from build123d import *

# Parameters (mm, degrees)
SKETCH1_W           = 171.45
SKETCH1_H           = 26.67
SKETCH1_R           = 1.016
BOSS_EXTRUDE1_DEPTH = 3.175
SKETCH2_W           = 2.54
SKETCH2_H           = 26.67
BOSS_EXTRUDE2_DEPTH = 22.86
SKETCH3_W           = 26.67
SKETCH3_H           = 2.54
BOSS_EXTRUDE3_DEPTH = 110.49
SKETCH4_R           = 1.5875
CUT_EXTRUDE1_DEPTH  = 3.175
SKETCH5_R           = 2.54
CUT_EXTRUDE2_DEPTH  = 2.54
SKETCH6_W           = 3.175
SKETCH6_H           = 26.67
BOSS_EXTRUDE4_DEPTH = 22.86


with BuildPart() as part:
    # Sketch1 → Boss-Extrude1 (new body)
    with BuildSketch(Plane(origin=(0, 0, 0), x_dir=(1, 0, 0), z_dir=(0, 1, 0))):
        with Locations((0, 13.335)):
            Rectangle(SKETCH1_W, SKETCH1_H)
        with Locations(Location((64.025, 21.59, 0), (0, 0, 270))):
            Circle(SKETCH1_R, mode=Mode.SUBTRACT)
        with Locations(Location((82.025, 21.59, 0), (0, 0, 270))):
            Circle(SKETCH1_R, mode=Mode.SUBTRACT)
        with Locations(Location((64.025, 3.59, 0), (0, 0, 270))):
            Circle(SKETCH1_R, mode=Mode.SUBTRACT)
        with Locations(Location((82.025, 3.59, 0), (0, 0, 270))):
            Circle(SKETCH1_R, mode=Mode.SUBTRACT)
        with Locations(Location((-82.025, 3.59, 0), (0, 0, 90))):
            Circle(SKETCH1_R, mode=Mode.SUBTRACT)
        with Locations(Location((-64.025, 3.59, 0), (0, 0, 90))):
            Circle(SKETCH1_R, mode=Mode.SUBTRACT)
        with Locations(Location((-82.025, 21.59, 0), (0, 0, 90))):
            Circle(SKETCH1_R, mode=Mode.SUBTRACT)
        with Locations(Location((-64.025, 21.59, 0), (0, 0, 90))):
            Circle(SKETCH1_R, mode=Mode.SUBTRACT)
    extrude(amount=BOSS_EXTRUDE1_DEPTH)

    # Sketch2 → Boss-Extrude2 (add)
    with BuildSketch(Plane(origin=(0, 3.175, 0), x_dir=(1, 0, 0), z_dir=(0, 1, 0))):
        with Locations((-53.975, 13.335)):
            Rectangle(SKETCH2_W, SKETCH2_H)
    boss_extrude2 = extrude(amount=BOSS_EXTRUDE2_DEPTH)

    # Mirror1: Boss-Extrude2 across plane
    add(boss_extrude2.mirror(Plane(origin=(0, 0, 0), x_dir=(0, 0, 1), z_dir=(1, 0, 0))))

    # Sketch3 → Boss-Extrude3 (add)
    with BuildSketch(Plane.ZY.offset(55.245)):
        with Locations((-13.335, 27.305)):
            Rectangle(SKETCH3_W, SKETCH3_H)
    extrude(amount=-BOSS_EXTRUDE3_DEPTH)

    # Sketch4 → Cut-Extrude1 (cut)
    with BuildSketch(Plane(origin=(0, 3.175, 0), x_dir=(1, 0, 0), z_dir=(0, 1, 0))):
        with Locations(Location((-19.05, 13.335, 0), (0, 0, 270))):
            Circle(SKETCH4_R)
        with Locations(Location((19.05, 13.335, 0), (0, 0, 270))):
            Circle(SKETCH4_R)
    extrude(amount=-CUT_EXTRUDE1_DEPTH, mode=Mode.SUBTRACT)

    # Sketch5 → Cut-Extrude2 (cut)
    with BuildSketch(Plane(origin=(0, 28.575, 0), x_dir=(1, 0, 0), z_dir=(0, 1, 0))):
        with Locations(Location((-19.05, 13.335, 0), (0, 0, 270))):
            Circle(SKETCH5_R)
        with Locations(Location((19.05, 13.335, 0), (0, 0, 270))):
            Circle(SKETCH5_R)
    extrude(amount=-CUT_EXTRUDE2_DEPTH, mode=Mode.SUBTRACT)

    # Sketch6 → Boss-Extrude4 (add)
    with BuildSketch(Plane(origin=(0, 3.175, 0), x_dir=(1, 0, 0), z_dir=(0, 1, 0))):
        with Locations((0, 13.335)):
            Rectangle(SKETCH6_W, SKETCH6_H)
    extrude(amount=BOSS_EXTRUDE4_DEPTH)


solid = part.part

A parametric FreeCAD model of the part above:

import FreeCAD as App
import Part
import Sketcher
Q = App.Units.Quantity


def add_polygon(sketch, points):
    """Adds a closed chain of lines whose ends are joined by coincident constraints."""
    first, n = sketch.GeometryCount, len(points)
    for a, b in zip(points, points[1:] + points[:1]):
        sketch.addGeometry(Part.LineSegment(App.Vector(*a, 0), App.Vector(*b, 0)), False)
    for i in range(n):
        sketch.addConstraint(Sketcher.Constraint("Coincident", first + i, 2, first + (i + 1) % n, 1))

doc = App.newDocument("Part")
body = doc.addObject("PartDesign::Body", "Body")

# Sketch on XZ plane
sketch1 = body.newObject("Sketcher::SketchObject", "Sketch")
sketch1.AttachmentSupport = (doc.getObject("XZ_Plane"), [""])
sketch1.MapMode = "FlatFace"
add_polygon(sketch1, [(-85.7, -26.7), (-85.7, 0), (85.7, 0), (85.7, -26.7)])  # lines 0-3
sketch1.addGeometry(Part.Circle(App.Vector(-82, -3.6, 0), App.Vector(0, 0, 1), 1), False)  # 4
sketch1.addGeometry(Part.Circle(App.Vector(-64, -3.6, 0), App.Vector(0, 0, 1), 1), False)  # 5
sketch1.addGeometry(Part.Circle(App.Vector(64, -3.6, 0), App.Vector(0, 0, 1), 1), False)  # 6
sketch1.addGeometry(Part.Circle(App.Vector(82, -3.6, 0), App.Vector(0, 0, 1), 1), False)  # 7
sketch1.addGeometry(Part.Circle(App.Vector(-82, -21.6, 0), App.Vector(0, 0, 1), 1), False)  # 8
sketch1.addGeometry(Part.Circle(App.Vector(-64, -21.6, 0), App.Vector(0, 0, 1), 1), False)  # 9
sketch1.addGeometry(Part.Circle(App.Vector(64, -21.6, 0), App.Vector(0, 0, 1), 1), False)  # 10
sketch1.addGeometry(Part.Circle(App.Vector(82, -21.6, 0), App.Vector(0, 0, 1), 1), False)  # 11
sketch1.addConstraint([
    Sketcher.Constraint("Vertical", 0),
    Sketcher.Constraint("Horizontal", 1),
    Sketcher.Constraint("Vertical", 2),
    Sketcher.Constraint("Horizontal", 3),
    Sketcher.Constraint("Equal", 4, 5),
    Sketcher.Constraint("Equal", 5, 6),
    Sketcher.Constraint("Equal", 6, 7),
    Sketcher.Constraint("Equal", 7, 8),
    Sketcher.Constraint("Equal", 8, 9),
    Sketcher.Constraint("Equal", 9, 10),
    Sketcher.Constraint("Equal", 10, 11),
    Sketcher.Constraint("Symmetric", 0, 2, 1, 2, -1, 1),
    Sketcher.Constraint("Symmetric", 5, 3, 6, 3, -2),
    Sketcher.Constraint("Symmetric", 4, 3, 7, 3, -2),
    Sketcher.Constraint("Symmetric", 9, 3, 10, 3, -2),
    Sketcher.Constraint("Symmetric", 8, 3, 11, 3, -2),
    Sketcher.Constraint("Horizontal", 4, 3, 5, 3),
    Sketcher.Constraint("Horizontal", 8, 3, 9, 3),
    Sketcher.Constraint("Vertical", 4, 3, 8, 3),
    Sketcher.Constraint("Vertical", 5, 3, 9, 3),
    Sketcher.Constraint("Diameter", 4, Q("0.08 in")),
    Sketcher.Constraint("DistanceX", 1, 1, 1, 2, Q("6.75 in")),
    Sketcher.Constraint("DistanceY", 0, 1, 0, 2, Q("1.05 in")),
    Sketcher.Constraint("DistanceY", 2, 2, 11, 3, Q("0.2 in")),
    Sketcher.Constraint("DistanceX", 4, 3, 6, 3, Q("5.75 in")),
    Sketcher.Constraint("DistanceX", 4, 3, -1, 1, Q("82.025 mm")),
    Sketcher.Constraint("DistanceY", 4, 3, -1, 1, Q("3.59 mm")),
])
pad1 = body.newObject("PartDesign::Pad", "Pad")
pad1.Profile = sketch1
pad1.Length = Q("0.125 in")
pad1.Reversed = True

# Sketch on XZ plane
sketch2 = body.newObject("Sketcher::SketchObject", "Sketch001")
sketch2.AttachmentSupport = (doc.getObject("XZ_Plane"), [""])
sketch2.MapMode = "FlatFace"
sketch2.AttachmentOffset = App.Placement(App.Vector(0, 0, -0.125 * 25.4), App.Rotation())
add_polygon(sketch2, [(-55.2, -26.7), (-55.2, 0), (-52.7, 0), (-52.7, -26.7)])  # lines 0-3
sketch2.addConstraint([
    Sketcher.Constraint("Vertical", 0),
    Sketcher.Constraint("Horizontal", 1),
    Sketcher.Constraint("Vertical", 2),
    Sketcher.Constraint("Horizontal", 3),
    Sketcher.Constraint("PointOnObject", 0, 2, -1),
    Sketcher.Constraint("DistanceX", 1, 1, 1, 2, Q("0.1 in")),
    Sketcher.Constraint("DistanceY", 0, 1, 0, 2, Q("1.05 in")),
    Sketcher.Constraint("DistanceX", 0, 2, -1, 1, Q("2.175 in")),
])
pad2 = body.newObject("PartDesign::Pad", "Pad001")
pad2.Profile = sketch2
pad2.Length = Q("0.9 in")
pad2.Reversed = True
doc.recompute()

mirrored = body.newObject("PartDesign::Mirrored", "Mirrored")
mirrored.Originals = [pad2]
mirrored.MirrorPlane = (doc.getObject("YZ_Plane"), [""])
body.Tip = mirrored

# Sketch on YZ plane
sketch3 = body.newObject("Sketcher::SketchObject", "Sketch002")
sketch3.AttachmentSupport = (doc.getObject("YZ_Plane"), [""])
sketch3.MapMode = "FlatFace"
sketch3.AttachmentOffset = App.Placement(App.Vector(0, 0, -2.175 * 25.4), App.Rotation())
add_polygon(sketch3, [(28.6, -26.7), (26, -26.7), (26, 0), (28.6, 0)])  # lines 0-3
sketch3.addConstraint([
    Sketcher.Constraint("Horizontal", 0),
    Sketcher.Constraint("Vertical", 1),
    Sketcher.Constraint("Horizontal", 2),
    Sketcher.Constraint("Vertical", 3),
    Sketcher.Constraint("PointOnObject", 1, 2, -1),
    Sketcher.Constraint("DistanceX", 0, 2, 0, 1, Q("0.1 in")),
    Sketcher.Constraint("DistanceY", 1, 1, 1, 2, Q("1.05 in")),
    Sketcher.Constraint("DistanceX", -1, 1, 0, 2, Q("1.025 in")),
])
pad3 = body.newObject("PartDesign::Pad", "Pad002")
pad3.Profile = sketch3
pad3.Length = Q("4.35 in")

# Sketch on XZ plane
sketch4 = body.newObject("Sketcher::SketchObject", "Sketch003")
sketch4.AttachmentSupport = (doc.getObject("XZ_Plane"), [""])
sketch4.MapMode = "FlatFace"
sketch4.AttachmentOffset = App.Placement(App.Vector(0, 0, -0.125 * 25.4), App.Rotation())
sketch4.addGeometry([
    Part.Circle(App.Vector(-19.1, -13.3, 0), App.Vector(0, 0, 1), 1.6),
    Part.Circle(App.Vector(19.1, -13.3, 0), App.Vector(0, 0, 1), 1.6),
], False)
sketch4.addConstraint([
    Sketcher.Constraint("Equal", 0, 1),
    Sketcher.Constraint("Symmetric", 0, 3, 1, 3, -2),
    Sketcher.Constraint("Diameter", 0, Q("0.125 in")),
    Sketcher.Constraint("DistanceX", 0, 3, 1, 3, Q("1.5 in")),
    Sketcher.Constraint("DistanceY", 0, 3, -1, 1, Q("0.525 in")),
])
pocket1 = body.newObject("PartDesign::Pocket", "Pocket")
pocket1.Profile = sketch4
pocket1.Length = Q("0.125 in")
pocket1.Reversed = True

# Sketch on XZ plane
sketch5 = body.newObject("Sketcher::SketchObject", "Sketch004")
sketch5.AttachmentSupport = (doc.getObject("XZ_Plane"), [""])
sketch5.MapMode = "FlatFace"
sketch5.AttachmentOffset = App.Placement(App.Vector(0, 0, -1.125 * 25.4), App.Rotation())
sketch5.addGeometry([
    Part.Circle(App.Vector(-19.1, -13.3, 0), App.Vector(0, 0, 1), 2.5),
    Part.Circle(App.Vector(19.1, -13.3, 0), App.Vector(0, 0, 1), 2.5),
], False)
sketch5.addConstraint([
    Sketcher.Constraint("Equal", 0, 1),
    Sketcher.Constraint("Symmetric", 0, 3, 1, 3, -2),
    Sketcher.Constraint("Diameter", 0, Q("0.2 in")),
    Sketcher.Constraint("DistanceX", 0, 3, 1, 3, Q("1.5 in")),
    Sketcher.Constraint("DistanceY", 0, 3, -1, 1, Q("0.525 in")),
])
pocket2 = body.newObject("PartDesign::Pocket", "Pocket001")
pocket2.Profile = sketch5
pocket2.Length = Q("0.1 in")
pocket2.Reversed = True

# Sketch on XZ plane
sketch6 = body.newObject("Sketcher::SketchObject", "Sketch005")
sketch6.AttachmentSupport = (doc.getObject("XZ_Plane"), [""])
sketch6.MapMode = "FlatFace"
sketch6.AttachmentOffset = App.Placement(App.Vector(0, 0, -0.125 * 25.4), App.Rotation())
add_polygon(sketch6, [(-1.6, -26.7), (-1.6, 0), (1.6, 0), (1.6, -26.7)])  # lines 0-3
sketch6.addConstraint([
    Sketcher.Constraint("Vertical", 0),
    Sketcher.Constraint("Horizontal", 1),
    Sketcher.Constraint("Vertical", 2),
    Sketcher.Constraint("Horizontal", 3),
    Sketcher.Constraint("Symmetric", 0, 2, 1, 2, -1, 1),
    Sketcher.Constraint("DistanceY", 0, 1, 0, 2, Q("1.05 in")),
    Sketcher.Constraint("DistanceX", 1, 1, 1, 2, Q("0.125 in")),
])
pad4 = body.newObject("PartDesign::Pad", "Pad003")
pad4.Profile = sketch6
pad4.Length = Q("0.9 in")
pad4.Reversed = True

doc.recompute()
